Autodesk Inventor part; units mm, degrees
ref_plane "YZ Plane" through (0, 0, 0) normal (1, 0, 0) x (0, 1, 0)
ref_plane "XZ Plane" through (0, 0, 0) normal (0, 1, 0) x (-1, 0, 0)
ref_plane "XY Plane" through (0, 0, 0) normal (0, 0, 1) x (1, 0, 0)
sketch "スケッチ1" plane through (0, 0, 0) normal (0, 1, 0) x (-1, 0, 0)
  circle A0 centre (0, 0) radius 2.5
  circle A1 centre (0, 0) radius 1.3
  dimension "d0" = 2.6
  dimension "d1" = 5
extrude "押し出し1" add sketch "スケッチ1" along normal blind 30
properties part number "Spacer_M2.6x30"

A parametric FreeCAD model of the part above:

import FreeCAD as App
import Part
import Sketcher
from FreeCAD import Vector

doc = App.newDocument("Part")
body = doc.addObject("PartDesign::Body", "Body")

sketch1 = body.newObject("Sketcher::SketchObject", "Sketch")
sketch1.AttachmentSupport = (doc.getObject("XZ_Plane"), [""])
sketch1.MapMode = "FlatFace"
sketch1.addGeometry(Part.Circle(Vector(0, 0, 0), Vector(0, 0, 1), 2.5), False)
sketch1.addGeometry(Part.Circle(Vector(0, 0, 0), Vector(0, 0, 1), 1.3), False)
sketch1.addConstraint(Sketcher.Constraint("Coincident", 0, 3, -1, 1))
sketch1.addConstraint(Sketcher.Constraint("Coincident", 1, 3, -1, 1))
sketch1.addConstraint(Sketcher.Constraint("Diameter", 0, 5.0))
sketch1.addConstraint(Sketcher.Constraint("Diameter", 1, 2.6))
pad1 = body.newObject("PartDesign::Pad", "Pad")
pad1.Profile = sketch1
pad1.Length = 30
pad1.Reversed = True

doc.recompute()
